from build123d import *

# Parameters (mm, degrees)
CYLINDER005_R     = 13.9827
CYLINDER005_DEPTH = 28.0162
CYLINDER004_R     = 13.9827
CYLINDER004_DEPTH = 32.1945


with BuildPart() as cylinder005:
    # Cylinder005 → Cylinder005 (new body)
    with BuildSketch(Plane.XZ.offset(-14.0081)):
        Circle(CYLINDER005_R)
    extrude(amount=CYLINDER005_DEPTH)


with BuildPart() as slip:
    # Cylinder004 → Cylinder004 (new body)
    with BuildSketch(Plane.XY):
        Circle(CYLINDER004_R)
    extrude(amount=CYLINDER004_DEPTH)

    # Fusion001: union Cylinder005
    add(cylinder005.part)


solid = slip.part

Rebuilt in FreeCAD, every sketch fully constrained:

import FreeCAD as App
import Part
import Sketcher
from FreeCAD import Vector
Q = App.Units.Quantity

doc = App.newDocument("Part")
body = doc.addObject("PartDesign::Body", "Body")

sketch1 = doc.addObject("Sketcher::SketchObject", "Sketch")
body.addObject(sketch1)
sketch1.AttachmentSupport = (doc.XZ_Plane, [""])
sketch1.MapMode = "FlatFace"
sketch1.AttachmentOffset = App.Placement(Vector(0, 0, -0.5515 * 25.4), App.Rotation())
sketch1.addGeometry(Part.Circle(Vector(0, 0, 0), Vector(0, 0, 1), 14), False)
sketch1.addConstraint(Sketcher.Constraint("Coincident", 0, 3, -1, 1))
sketch1.addConstraint(Sketcher.Constraint("Diameter", 0, Q("1.101 in")))
pad1 = doc.addObject("PartDesign::Pad", "Pad")
body.addObject(pad1)
pad1.Profile = sketch1
pad1.Length = Q("1.103 in")
body2 = doc.addObject("PartDesign::Body", "Body001")

sketch2 = doc.addObject("Sketcher::SketchObject", "Sketch001")
body2.addObject(sketch2)
sketch2.AttachmentSupport = (doc.getObject("XY_Plane001"), [""])
sketch2.MapMode = "FlatFace"
sketch2.addGeometry(Part.Circle(Vector(0, 0, 0), Vector(0, 0, 1), 14), False)
sketch2.addConstraint(Sketcher.Constraint("Coincident", 0, 3, -1, 1))
sketch2.addConstraint(Sketcher.Constraint("Diameter", 0, Q("1.101 in")))
pad2 = doc.addObject("PartDesign::Pad", "Pad001")
body2.addObject(pad2)
pad2.Profile = sketch2
pad2.Length = Q("1.2675 in")
doc.recompute()

boolean = doc.addObject("PartDesign::Boolean", "Boolean")
body2.addObject(boolean)
boolean.Type = "Fuse"
boolean.addObjects([body])

doc.recompute()
